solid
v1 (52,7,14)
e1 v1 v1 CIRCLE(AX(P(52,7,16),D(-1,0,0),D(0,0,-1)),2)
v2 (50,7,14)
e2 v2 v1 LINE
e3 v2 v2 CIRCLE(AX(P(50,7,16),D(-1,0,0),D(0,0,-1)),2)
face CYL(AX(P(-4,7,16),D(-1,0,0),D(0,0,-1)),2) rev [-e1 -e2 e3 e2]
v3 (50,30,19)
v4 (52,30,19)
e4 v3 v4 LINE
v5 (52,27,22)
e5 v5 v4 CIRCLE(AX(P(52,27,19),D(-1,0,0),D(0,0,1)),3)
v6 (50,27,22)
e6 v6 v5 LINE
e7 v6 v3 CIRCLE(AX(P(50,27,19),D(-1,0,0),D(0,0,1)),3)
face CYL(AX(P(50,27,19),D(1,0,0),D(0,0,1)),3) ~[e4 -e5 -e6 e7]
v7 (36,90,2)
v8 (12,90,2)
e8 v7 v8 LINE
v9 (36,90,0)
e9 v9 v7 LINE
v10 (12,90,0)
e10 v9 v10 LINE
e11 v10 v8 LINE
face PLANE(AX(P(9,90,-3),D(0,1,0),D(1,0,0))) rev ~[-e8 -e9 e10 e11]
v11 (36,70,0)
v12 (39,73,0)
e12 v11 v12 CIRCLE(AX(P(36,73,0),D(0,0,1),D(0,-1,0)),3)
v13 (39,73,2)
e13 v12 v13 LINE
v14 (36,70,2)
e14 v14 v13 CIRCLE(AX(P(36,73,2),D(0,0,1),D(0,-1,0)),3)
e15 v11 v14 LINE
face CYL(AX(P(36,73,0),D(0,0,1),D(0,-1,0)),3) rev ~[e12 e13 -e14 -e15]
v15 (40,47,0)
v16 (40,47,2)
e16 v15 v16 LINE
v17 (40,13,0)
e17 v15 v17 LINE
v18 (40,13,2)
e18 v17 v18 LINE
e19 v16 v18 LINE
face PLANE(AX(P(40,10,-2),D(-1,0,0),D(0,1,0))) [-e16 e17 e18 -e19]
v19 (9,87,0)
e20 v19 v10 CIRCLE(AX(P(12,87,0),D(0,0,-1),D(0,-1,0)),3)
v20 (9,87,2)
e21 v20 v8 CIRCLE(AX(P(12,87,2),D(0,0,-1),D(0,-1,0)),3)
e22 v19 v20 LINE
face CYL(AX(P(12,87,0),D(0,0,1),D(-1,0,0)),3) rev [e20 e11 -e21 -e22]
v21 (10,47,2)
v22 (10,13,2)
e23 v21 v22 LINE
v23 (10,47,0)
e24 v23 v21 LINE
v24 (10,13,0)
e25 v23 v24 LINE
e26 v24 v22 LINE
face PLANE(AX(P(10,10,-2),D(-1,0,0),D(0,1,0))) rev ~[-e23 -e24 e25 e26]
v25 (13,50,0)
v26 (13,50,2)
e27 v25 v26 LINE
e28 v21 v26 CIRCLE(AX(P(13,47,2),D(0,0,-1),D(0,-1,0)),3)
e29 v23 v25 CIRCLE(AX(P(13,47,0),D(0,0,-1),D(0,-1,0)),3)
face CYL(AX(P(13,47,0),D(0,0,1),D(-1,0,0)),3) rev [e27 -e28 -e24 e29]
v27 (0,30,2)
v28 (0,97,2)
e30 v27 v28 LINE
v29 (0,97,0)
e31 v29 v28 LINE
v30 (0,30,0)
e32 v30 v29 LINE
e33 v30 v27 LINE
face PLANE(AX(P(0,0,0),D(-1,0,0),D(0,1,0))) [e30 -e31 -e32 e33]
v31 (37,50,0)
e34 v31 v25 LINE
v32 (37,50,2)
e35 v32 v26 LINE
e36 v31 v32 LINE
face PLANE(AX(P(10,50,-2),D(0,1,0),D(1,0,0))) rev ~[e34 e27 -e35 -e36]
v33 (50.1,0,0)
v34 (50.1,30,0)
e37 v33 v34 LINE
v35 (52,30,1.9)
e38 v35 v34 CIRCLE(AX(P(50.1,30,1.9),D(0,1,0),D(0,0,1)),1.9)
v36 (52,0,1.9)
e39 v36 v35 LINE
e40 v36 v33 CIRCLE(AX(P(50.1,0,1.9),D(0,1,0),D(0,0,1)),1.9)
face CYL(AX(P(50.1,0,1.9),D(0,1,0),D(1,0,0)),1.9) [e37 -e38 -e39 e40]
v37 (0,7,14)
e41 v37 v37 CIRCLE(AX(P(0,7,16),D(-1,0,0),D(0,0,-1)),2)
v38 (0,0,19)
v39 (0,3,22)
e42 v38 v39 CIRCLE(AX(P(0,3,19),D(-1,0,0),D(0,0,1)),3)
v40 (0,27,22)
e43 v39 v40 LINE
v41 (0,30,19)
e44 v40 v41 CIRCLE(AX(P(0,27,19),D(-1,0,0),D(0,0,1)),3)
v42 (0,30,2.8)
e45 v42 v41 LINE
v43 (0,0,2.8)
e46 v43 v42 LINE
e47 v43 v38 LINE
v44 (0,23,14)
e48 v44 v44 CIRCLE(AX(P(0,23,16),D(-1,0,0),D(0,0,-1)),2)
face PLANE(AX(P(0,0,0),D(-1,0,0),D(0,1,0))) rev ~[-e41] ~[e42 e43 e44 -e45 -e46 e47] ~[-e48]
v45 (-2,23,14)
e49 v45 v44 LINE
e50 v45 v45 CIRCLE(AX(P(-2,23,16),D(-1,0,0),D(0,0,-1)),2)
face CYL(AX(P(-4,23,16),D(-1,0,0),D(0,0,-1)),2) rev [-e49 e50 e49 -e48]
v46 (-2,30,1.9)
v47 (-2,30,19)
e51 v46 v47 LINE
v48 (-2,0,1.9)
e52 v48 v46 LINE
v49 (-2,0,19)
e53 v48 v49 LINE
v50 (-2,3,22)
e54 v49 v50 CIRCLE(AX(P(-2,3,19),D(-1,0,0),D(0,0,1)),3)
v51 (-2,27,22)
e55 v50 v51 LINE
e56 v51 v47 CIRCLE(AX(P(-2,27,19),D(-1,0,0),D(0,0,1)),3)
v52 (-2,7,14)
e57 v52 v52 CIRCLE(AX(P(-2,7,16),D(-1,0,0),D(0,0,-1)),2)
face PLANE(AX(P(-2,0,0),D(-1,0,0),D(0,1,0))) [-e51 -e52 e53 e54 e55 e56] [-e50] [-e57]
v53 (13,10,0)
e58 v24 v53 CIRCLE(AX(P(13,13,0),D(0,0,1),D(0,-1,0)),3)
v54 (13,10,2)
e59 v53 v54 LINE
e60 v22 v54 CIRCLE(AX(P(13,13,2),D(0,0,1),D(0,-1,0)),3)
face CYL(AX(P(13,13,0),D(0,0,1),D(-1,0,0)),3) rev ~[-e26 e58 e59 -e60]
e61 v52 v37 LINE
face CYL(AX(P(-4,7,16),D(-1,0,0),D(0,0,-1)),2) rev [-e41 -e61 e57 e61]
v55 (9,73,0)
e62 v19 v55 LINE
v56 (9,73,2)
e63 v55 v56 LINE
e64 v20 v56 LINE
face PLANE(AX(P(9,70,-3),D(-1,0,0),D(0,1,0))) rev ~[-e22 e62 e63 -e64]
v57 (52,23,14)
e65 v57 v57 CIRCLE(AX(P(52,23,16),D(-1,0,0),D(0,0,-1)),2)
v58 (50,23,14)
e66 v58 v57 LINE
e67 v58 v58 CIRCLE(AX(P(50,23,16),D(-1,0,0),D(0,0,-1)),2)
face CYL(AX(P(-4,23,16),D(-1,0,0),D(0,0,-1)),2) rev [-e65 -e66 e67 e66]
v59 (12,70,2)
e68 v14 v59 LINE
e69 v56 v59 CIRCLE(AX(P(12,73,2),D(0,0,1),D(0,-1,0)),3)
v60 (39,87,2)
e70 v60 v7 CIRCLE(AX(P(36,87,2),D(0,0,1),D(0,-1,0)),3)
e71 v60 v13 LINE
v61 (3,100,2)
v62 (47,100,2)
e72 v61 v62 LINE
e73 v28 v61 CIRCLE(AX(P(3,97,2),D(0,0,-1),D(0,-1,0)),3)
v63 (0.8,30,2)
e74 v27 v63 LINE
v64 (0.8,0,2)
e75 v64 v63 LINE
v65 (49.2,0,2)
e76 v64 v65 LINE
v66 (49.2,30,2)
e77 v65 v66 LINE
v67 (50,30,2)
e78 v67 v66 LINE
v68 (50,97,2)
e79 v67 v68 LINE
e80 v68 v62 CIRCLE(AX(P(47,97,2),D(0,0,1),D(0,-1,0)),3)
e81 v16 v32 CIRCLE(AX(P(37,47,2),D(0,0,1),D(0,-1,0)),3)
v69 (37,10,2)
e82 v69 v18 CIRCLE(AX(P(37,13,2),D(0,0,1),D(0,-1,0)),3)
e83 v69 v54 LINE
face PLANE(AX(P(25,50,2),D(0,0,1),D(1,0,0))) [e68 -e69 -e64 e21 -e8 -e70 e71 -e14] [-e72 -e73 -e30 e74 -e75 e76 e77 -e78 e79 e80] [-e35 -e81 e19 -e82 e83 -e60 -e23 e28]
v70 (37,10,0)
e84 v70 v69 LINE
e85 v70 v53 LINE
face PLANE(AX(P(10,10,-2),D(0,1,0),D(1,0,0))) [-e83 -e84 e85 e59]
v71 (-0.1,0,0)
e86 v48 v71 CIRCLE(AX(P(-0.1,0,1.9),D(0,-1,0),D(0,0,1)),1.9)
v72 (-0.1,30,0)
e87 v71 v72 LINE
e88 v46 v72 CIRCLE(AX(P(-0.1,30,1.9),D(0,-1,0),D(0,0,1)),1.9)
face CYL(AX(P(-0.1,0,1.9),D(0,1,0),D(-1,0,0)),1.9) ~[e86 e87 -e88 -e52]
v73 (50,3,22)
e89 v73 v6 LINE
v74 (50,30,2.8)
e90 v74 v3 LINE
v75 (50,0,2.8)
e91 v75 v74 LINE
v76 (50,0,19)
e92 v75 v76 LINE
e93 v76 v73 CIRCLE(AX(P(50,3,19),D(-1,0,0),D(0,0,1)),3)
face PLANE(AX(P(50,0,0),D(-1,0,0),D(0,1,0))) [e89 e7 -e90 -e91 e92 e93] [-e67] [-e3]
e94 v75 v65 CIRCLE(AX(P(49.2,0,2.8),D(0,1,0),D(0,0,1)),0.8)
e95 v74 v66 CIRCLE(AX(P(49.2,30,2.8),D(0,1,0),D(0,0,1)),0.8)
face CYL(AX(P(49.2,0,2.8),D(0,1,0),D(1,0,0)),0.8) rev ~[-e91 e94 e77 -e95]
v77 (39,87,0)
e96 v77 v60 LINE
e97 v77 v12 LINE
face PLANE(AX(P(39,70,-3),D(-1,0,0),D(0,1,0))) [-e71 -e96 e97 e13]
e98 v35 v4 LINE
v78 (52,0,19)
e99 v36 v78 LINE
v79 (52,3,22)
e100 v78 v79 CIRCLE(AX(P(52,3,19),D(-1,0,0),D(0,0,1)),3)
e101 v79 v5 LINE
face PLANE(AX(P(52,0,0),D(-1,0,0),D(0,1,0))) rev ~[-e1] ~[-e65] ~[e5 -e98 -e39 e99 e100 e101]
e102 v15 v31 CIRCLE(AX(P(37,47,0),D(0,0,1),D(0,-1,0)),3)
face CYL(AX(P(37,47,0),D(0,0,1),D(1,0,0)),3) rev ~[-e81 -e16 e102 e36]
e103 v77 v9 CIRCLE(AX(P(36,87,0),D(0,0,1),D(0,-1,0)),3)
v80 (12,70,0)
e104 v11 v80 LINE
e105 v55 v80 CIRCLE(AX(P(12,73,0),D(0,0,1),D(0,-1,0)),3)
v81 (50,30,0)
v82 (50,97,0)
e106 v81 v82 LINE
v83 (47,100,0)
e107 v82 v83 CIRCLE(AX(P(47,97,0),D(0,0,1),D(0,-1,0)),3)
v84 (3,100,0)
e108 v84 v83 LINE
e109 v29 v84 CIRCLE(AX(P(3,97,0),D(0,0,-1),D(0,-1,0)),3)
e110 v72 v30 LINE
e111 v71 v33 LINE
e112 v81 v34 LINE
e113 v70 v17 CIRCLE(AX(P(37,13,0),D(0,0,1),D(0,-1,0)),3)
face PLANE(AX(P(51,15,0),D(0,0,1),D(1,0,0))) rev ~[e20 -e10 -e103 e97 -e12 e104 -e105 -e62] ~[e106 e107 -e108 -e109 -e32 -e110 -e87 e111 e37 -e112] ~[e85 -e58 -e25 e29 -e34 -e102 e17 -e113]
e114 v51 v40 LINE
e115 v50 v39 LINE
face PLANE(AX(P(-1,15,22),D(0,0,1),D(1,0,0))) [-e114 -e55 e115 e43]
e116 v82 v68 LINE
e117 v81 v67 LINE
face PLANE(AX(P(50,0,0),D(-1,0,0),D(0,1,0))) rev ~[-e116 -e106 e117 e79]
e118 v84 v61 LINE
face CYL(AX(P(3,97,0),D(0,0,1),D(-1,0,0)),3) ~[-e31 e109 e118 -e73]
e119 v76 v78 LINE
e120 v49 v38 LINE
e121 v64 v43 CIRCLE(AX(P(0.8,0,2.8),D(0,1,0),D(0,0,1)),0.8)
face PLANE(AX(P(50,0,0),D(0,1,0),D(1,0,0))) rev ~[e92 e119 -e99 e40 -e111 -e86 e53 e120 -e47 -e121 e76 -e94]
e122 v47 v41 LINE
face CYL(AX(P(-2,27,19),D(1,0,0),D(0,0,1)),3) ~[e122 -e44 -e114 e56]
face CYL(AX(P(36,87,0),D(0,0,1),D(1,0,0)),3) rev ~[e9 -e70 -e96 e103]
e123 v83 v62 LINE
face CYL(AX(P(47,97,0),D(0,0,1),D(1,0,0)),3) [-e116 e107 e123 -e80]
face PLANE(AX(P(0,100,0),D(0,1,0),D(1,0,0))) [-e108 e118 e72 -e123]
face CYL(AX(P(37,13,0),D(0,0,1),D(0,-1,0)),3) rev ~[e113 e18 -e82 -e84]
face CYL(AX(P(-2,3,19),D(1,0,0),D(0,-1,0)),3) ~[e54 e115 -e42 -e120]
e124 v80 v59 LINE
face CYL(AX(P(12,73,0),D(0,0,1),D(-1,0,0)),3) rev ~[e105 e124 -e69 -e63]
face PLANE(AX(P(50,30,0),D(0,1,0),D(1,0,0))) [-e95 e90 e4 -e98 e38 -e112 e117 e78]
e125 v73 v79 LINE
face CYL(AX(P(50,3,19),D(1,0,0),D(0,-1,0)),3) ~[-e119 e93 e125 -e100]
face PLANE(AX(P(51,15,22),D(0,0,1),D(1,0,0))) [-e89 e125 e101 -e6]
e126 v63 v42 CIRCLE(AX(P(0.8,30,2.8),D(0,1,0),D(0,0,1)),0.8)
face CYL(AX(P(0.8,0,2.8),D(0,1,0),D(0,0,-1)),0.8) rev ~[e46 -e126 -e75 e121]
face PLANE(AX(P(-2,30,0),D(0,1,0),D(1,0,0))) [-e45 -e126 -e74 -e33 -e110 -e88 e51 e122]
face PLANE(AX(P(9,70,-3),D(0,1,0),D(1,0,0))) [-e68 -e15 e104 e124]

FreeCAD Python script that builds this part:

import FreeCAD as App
import Part
import Sketcher


def edges_at(feature, points):
    """Names of the edges that pass closest to the given points."""
    edges = feature.Shape.Edges
    near = lambda p: min(range(len(edges)), key=lambda i: edges[i].distToShape(Part.Vertex(*p))[0])
    return sorted({f"Edge{near(p) + 1}" for p in points})

doc = App.newDocument("Part")
params = doc.addObject("Spreadsheet::Sheet", "Params")
for row, (alias, value) in enumerate([
    ("sketch1_width", "30 mm"),
    ("sketch1_height", "20 mm"),
    ("pad1_length", "7 mm"),
    ("sketch2_width", "30 mm"),
    ("sketch2_height", "40 mm"),
    ("pad2_length", "6 mm"),
    ("sketch3_diameter", "4 mm"),
    ("pad3_length", "59 mm"),
    ("sketch4_diameter", "4 mm"),
    ("pad4_length", "59 mm"),
    ("sketch5_width", "2 mm"),
    ("sketch5_height", "30 mm"),
    ("pad5_length", "22 mm"),
    ("fillet_radius", "1.9 mm"),
    ("sketch6_width", "2 mm"),
    ("sketch6_height", "30 mm"),
    ("pad6_length", "22 mm"),
    ("fillet2_radius", "1.9 mm"),
    ("sketch7_width", "50 mm"),
    ("sketch7_height", "100 mm"),
    ("pad7_length", "2 mm"),
    ("fillet3_radius", "0.8 mm"),
    ("fillet4_radius", "3 mm"),
    ("fillet5_radius", "3 mm"),
    ("fillet6_radius", "3 mm"),
    ("fillet7_radius", "3 mm"),
], start=1):
    params.set(f"A{row}", alias)
    params.set(f"B{row}", "=" + value)
    params.setAlias(f"B{row}", alias)

body = doc.addObject("PartDesign::Body", "Body")

# Sketch on XY plane
sketch1 = body.newObject("Sketcher::SketchObject", "Sketch")
sketch1.AttachmentSupport = (doc.getObject("XY_Plane"), [""])
sketch1.MapMode = "FlatFace"
sketch1.AttachmentOffset = App.Placement(App.Vector(0, 0, -3), App.Rotation())
sketch1.addGeometry([
    Part.LineSegment(App.Vector(9, 90, 0), App.Vector(9, 70, 0)),
    Part.LineSegment(App.Vector(9, 70, 0), App.Vector(39, 70, 0)),
    Part.LineSegment(App.Vector(39, 70, 0), App.Vector(39, 90, 0)),
    Part.LineSegment(App.Vector(39, 90, 0), App.Vector(9, 90, 0)),
], False)
sketch1.addConstraint([
    Sketcher.Constraint("Coincident", 0, 2, 1, 1),
    Sketcher.Constraint("Coincident", 1, 2, 2, 1),
    Sketcher.Constraint("Coincident", 2, 2, 3, 1),
    Sketcher.Constraint("Coincident", 3, 2, 0, 1),
    Sketcher.Constraint("Vertical", 0),
    Sketcher.Constraint("Horizontal", 1),
    Sketcher.Constraint("Vertical", 2),
    Sketcher.Constraint("Horizontal", 3),
    Sketcher.Constraint("DistanceX", 1, 1, 1, 2, 30.0),
    Sketcher.Constraint("DistanceY", 0, 2, 0, 1, 20.0),
    Sketcher.Constraint("DistanceX", -1, 1, 0, 2, 9.0),
    Sketcher.Constraint("DistanceY", -1, 1, 0, 2, 70.0),
])
sketch1.setExpression("Constraints[8]", "Params.sketch1_width")
sketch1.setExpression("Constraints[9]", "Params.sketch1_height")
pad1 = body.newObject("PartDesign::Pad", "Pad")
pad1.Profile = sketch1
pad1.setExpression("Length", "Params.pad1_length")
body2 = doc.addObject("PartDesign::Body", "Body001")

# Sketch on XY plane
sketch2 = body2.newObject("Sketcher::SketchObject", "Sketch001")
sketch2.AttachmentSupport = (doc.getObject("XY_Plane001"), [""])
sketch2.MapMode = "FlatFace"
sketch2.AttachmentOffset = App.Placement(App.Vector(0, 0, -2), App.Rotation())
sketch2.addGeometry([
    Part.LineSegment(App.Vector(10, 50, 0), App.Vector(10, 10, 0)),
    Part.LineSegment(App.Vector(10, 10, 0), App.Vector(40, 10, 0)),
    Part.LineSegment(App.Vector(40, 10, 0), App.Vector(40, 50, 0)),
    Part.LineSegment(App.Vector(40, 50, 0), App.Vector(10, 50, 0)),
], False)
sketch2.addConstraint([
    Sketcher.Constraint("Coincident", 0, 2, 1, 1),
    Sketcher.Constraint("Coincident", 1, 2, 2, 1),
    Sketcher.Constraint("Coincident", 2, 2, 3, 1),
    Sketcher.Constraint("Coincident", 3, 2, 0, 1),
    Sketcher.Constraint("Vertical", 0),
    Sketcher.Constraint("Horizontal", 1),
    Sketcher.Constraint("Vertical", 2),
    Sketcher.Constraint("Horizontal", 3),
    Sketcher.Constraint("DistanceX", 1, 1, 1, 2, 30.0),
    Sketcher.Constraint("DistanceY", 0, 2, 0, 1, 40.0),
    Sketcher.Constraint("DistanceX", -1, 1, 0, 2, 10.0),
    Sketcher.Constraint("DistanceY", -1, 1, 0, 2, 10.0),
])
sketch2.setExpression("Constraints[8]", "Params.sketch2_width")
sketch2.setExpression("Constraints[9]", "Params.sketch2_height")
pad2 = body2.newObject("PartDesign::Pad", "Pad001")
pad2.Profile = sketch2
pad2.setExpression("Length", "Params.pad2_length")
body3 = doc.addObject("PartDesign::Body", "Body002")

# Sketch on YZ plane
sketch3 = body3.newObject("Sketcher::SketchObject", "Sketch002")
sketch3.AttachmentSupport = (doc.getObject("YZ_Plane002"), [""])
sketch3.MapMode = "FlatFace"
sketch3.AttachmentOffset = App.Placement(App.Vector(0, 0, -4), App.Rotation())
sketch3.addGeometry(Part.Circle(App.Vector(23, 13, 0), App.Vector(0, 0, 1), 2), False)
sketch3.addConstraint([
    Sketcher.Constraint("Diameter", 0, 4.0),
    Sketcher.Constraint("DistanceX", -1, 1, 0, 3, 23.0),
    Sketcher.Constraint("DistanceY", -1, 1, 0, 3, 13.0),
])
sketch3.setExpression("Constraints[0]", "Params.sketch3_diameter")
pad3 = body3.newObject("PartDesign::Pad", "Pad002")
pad3.Profile = sketch3
pad3.setExpression("Length", "Params.pad3_length")
body4 = doc.addObject("PartDesign::Body", "Body003")
body4.AllowCompound = True

# Sketch on YZ plane
sketch4 = body4.newObject("Sketcher::SketchObject", "Sketch003")
sketch4.AttachmentSupport = (doc.getObject("YZ_Plane003"), [""])
sketch4.MapMode = "FlatFace"
sketch4.AttachmentOffset = App.Placement(App.Vector(0, 0, -4), App.Rotation())
sketch4.addGeometry(Part.Circle(App.Vector(7, 13, 0), App.Vector(0, 0, 1), 2), False)
sketch4.addConstraint([
    Sketcher.Constraint("Diameter", 0, 4.0),
    Sketcher.Constraint("DistanceX", -1, 1, 0, 3, 7.0),
    Sketcher.Constraint("DistanceY", -1, 1, 0, 3, 13.0),
])
sketch4.setExpression("Constraints[0]", "Params.sketch4_diameter")
pad4 = body4.newObject("PartDesign::Pad", "Pad003")
pad4.Profile = sketch4
pad4.setExpression("Length", "Params.pad4_length")
doc.recompute()

boolean = body4.newObject("PartDesign::Boolean", "Boolean")
boolean.Type = "Fuse"
boolean.addObjects([body3])
body5 = doc.addObject("PartDesign::Body", "Body004")
body5.AllowCompound = True
doc.recompute()

body4.Placement = App.Placement(App.Vector(0, 0, 3), App.Rotation(App.Vector(0, 0, 1), 0))
boolean2 = body5.newObject("PartDesign::Boolean", "Boolean001")
boolean2.Type = "Fuse"
boolean2.addObjects([body4])
body6 = doc.addObject("PartDesign::Body", "Body005")

# Sketch on XY plane
sketch5 = body6.newObject("Sketcher::SketchObject", "Sketch004")
sketch5.AttachmentSupport = (doc.getObject("XY_Plane005"), [""])
sketch5.MapMode = "FlatFace"
sketch5.addGeometry([
    Part.LineSegment(App.Vector(-2, 30, 0), App.Vector(-2, 0, 0)),
    Part.LineSegment(App.Vector(-2, 0, 0), App.Vector(0, 0, 0)),
    Part.LineSegment(App.Vector(0, 0, 0), App.Vector(0, 30, 0)),
    Part.LineSegment(App.Vector(0, 30, 0), App.Vector(-2, 30, 0)),
], False)
sketch5.addConstraint([
    Sketcher.Constraint("Coincident", 0, 2, 1, 1),
    Sketcher.Constraint("Coincident", 1, 2, 2, 1),
    Sketcher.Constraint("Coincident", 2, 2, 3, 1),
    Sketcher.Constraint("Coincident", 3, 2, 0, 1),
    Sketcher.Constraint("Vertical", 0),
    Sketcher.Constraint("Horizontal", 1),
    Sketcher.Constraint("Vertical", 2),
    Sketcher.Constraint("Horizontal", 3),
    Sketcher.Constraint("Coincident", 1, 2, -1, 1),
    Sketcher.Constraint("DistanceX", 1, 1, 1, 2, 2.0),
    Sketcher.Constraint("DistanceY", 0, 2, 0, 1, 30.0),
])
sketch5.setExpression("Constraints[9]", "Params.sketch5_width")
sketch5.setExpression("Constraints[10]", "Params.sketch5_height")
pad5 = body6.newObject("PartDesign::Pad", "Pad004")
pad5.Profile = sketch5
pad5.setExpression("Length", "Params.pad5_length")
doc.recompute()

fillet = body6.newObject("PartDesign::Fillet", "Fillet")
fillet.Base = (pad5, edges_at(pad5, [(-2, 15, 0)]))
fillet.setExpression("Radius", "Params.fillet_radius")
body7 = doc.addObject("PartDesign::Body", "Body006")

# Sketch on XY plane
sketch6 = body7.newObject("Sketcher::SketchObject", "Sketch005")
sketch6.AttachmentSupport = (doc.getObject("XY_Plane006"), [""])
sketch6.MapMode = "FlatFace"
sketch6.addGeometry([
    Part.LineSegment(App.Vector(50, 30, 0), App.Vector(50, 0, 0)),
    Part.LineSegment(App.Vector(50, 0, 0), App.Vector(52, 0, 0)),
    Part.LineSegment(App.Vector(52, 0, 0), App.Vector(52, 30, 0)),
    Part.LineSegment(App.Vector(52, 30, 0), App.Vector(50, 30, 0)),
], False)
sketch6.addConstraint([
    Sketcher.Constraint("Coincident", 0, 2, 1, 1),
    Sketcher.Constraint("Coincident", 1, 2, 2, 1),
    Sketcher.Constraint("Coincident", 2, 2, 3, 1),
    Sketcher.Constraint("Coincident", 3, 2, 0, 1),
    Sketcher.Constraint("Vertical", 0),
    Sketcher.Constraint("Horizontal", 1),
    Sketcher.Constraint("Vertical", 2),
    Sketcher.Constraint("Horizontal", 3),
    Sketcher.Constraint("PointOnObject", 0, 2, -1),
    Sketcher.Constraint("DistanceX", 1, 1, 1, 2, 2.0),
    Sketcher.Constraint("DistanceY", 0, 2, 0, 1, 30.0),
    Sketcher.Constraint("DistanceX", -1, 1, 0, 2, 50.0),
])
sketch6.setExpression("Constraints[9]", "Params.sketch6_width")
sketch6.setExpression("Constraints[10]", "Params.sketch6_height")
pad6 = body7.newObject("PartDesign::Pad", "Pad005")
pad6.Profile = sketch6
pad6.setExpression("Length", "Params.pad6_length")
doc.recompute()

fillet2 = body7.newObject("PartDesign::Fillet", "Fillet001")
fillet2.Base = (pad6, edges_at(pad6, [(52, 15, 0)]))
fillet2.setExpression("Radius", "Params.fillet2_radius")
body8 = doc.addObject("PartDesign::Body", "Body007")

# Sketch on XY plane
sketch7 = body8.newObject("Sketcher::SketchObject", "Sketch006")
sketch7.AttachmentSupport = (doc.getObject("XY_Plane007"), [""])
sketch7.MapMode = "FlatFace"
sketch7.addGeometry([
    Part.LineSegment(App.Vector(0, 100, 0), App.Vector(0, 0, 0)),
    Part.LineSegment(App.Vector(0, 0, 0), App.Vector(50, 0, 0)),
    Part.LineSegment(App.Vector(50, 0, 0), App.Vector(50, 100, 0)),
    Part.LineSegment(App.Vector(50, 100, 0), App.Vector(0, 100, 0)),
], False)
sketch7.addConstraint([
    Sketcher.Constraint("Coincident", 0, 2, 1, 1),
    Sketcher.Constraint("Coincident", 1, 2, 2, 1),
    Sketcher.Constraint("Coincident", 2, 2, 3, 1),
    Sketcher.Constraint("Coincident", 3, 2, 0, 1),
    Sketcher.Constraint("Vertical", 0),
    Sketcher.Constraint("Horizontal", 1),
    Sketcher.Constraint("Vertical", 2),
    Sketcher.Constraint("Horizontal", 3),
    Sketcher.Constraint("Coincident", 0, 2, -1, 1),
    Sketcher.Constraint("DistanceX", 1, 1, 1, 2, 50.0),
    Sketcher.Constraint("DistanceY", 0, 2, 0, 1, 100.0),
])
sketch7.setExpression("Constraints[9]", "Params.sketch7_width")
sketch7.setExpression("Constraints[10]", "Params.sketch7_height")
pad7 = body8.newObject("PartDesign::Pad", "Pad006")
pad7.Profile = sketch7
pad7.setExpression("Length", "Params.pad7_length")
doc.recompute()

boolean3 = body8.newObject("PartDesign::Boolean", "Boolean002")
boolean3.Type = "Fuse"
boolean3.addObjects([body6])
doc.recompute()

boolean4 = body8.newObject("PartDesign::Boolean", "Boolean003")
boolean4.Type = "Fuse"
boolean4.addObjects([body7])
doc.recompute()

fillet3 = body8.newObject("PartDesign::Fillet", "Fillet002")
fillet3.Base = (boolean4, edges_at(boolean4, [(0, 15, 2), (50, 15, 2)]))
fillet3.setExpression("Radius", "Params.fillet3_radius")
doc.recompute()

boolean5 = body8.newObject("PartDesign::Boolean", "Boolean004")
boolean5.Type = "Cut"
boolean5.addObjects([body5])
doc.recompute()

fillet4 = body8.newObject("PartDesign::Fillet", "Fillet003")
fillet4.Base = (boolean5, edges_at(boolean5, [
    (-1, 30, 22),
    (-1, 0, 22),
    (51, 0, 22),
    (51, 30, 22),
]))
fillet4.setExpression("Radius", "Params.fillet4_radius")
doc.recompute()

fillet5 = body8.newObject("PartDesign::Fillet", "Fillet004")
fillet5.Base = (fillet4, edges_at(fillet4, [(0, 100, 1), (50, 100, 1)]))
fillet5.setExpression("Radius", "Params.fillet5_radius")
doc.recompute()

boolean6 = body8.newObject("PartDesign::Boolean", "Boolean005")
boolean6.Type = "Cut"
boolean6.addObjects([body2])
doc.recompute()

fillet6 = body8.newObject("PartDesign::Fillet", "Fillet005")
fillet6.Base = (boolean6, edges_at(boolean6, [
    (40, 10, 1),
    (10, 10, 1),
    (40, 50, 1),
    (10, 50, 1),
]))
fillet6.setExpression("Radius", "Params.fillet6_radius")
doc.recompute()

boolean7 = body8.newObject("PartDesign::Boolean", "Boolean006")
boolean7.Type = "Cut"
boolean7.addObjects([body])
doc.recompute()

fillet7 = body8.newObject("PartDesign::Fillet", "Fillet006")
fillet7.Base = (boolean7, edges_at(boolean7, [
    (39, 70, 1),
    (9, 70, 1),
    (39, 90, 1),
    (9, 90, 1),
]))
fillet7.setExpression("Radius", "Params.fillet7_radius")

doc.recompute()
